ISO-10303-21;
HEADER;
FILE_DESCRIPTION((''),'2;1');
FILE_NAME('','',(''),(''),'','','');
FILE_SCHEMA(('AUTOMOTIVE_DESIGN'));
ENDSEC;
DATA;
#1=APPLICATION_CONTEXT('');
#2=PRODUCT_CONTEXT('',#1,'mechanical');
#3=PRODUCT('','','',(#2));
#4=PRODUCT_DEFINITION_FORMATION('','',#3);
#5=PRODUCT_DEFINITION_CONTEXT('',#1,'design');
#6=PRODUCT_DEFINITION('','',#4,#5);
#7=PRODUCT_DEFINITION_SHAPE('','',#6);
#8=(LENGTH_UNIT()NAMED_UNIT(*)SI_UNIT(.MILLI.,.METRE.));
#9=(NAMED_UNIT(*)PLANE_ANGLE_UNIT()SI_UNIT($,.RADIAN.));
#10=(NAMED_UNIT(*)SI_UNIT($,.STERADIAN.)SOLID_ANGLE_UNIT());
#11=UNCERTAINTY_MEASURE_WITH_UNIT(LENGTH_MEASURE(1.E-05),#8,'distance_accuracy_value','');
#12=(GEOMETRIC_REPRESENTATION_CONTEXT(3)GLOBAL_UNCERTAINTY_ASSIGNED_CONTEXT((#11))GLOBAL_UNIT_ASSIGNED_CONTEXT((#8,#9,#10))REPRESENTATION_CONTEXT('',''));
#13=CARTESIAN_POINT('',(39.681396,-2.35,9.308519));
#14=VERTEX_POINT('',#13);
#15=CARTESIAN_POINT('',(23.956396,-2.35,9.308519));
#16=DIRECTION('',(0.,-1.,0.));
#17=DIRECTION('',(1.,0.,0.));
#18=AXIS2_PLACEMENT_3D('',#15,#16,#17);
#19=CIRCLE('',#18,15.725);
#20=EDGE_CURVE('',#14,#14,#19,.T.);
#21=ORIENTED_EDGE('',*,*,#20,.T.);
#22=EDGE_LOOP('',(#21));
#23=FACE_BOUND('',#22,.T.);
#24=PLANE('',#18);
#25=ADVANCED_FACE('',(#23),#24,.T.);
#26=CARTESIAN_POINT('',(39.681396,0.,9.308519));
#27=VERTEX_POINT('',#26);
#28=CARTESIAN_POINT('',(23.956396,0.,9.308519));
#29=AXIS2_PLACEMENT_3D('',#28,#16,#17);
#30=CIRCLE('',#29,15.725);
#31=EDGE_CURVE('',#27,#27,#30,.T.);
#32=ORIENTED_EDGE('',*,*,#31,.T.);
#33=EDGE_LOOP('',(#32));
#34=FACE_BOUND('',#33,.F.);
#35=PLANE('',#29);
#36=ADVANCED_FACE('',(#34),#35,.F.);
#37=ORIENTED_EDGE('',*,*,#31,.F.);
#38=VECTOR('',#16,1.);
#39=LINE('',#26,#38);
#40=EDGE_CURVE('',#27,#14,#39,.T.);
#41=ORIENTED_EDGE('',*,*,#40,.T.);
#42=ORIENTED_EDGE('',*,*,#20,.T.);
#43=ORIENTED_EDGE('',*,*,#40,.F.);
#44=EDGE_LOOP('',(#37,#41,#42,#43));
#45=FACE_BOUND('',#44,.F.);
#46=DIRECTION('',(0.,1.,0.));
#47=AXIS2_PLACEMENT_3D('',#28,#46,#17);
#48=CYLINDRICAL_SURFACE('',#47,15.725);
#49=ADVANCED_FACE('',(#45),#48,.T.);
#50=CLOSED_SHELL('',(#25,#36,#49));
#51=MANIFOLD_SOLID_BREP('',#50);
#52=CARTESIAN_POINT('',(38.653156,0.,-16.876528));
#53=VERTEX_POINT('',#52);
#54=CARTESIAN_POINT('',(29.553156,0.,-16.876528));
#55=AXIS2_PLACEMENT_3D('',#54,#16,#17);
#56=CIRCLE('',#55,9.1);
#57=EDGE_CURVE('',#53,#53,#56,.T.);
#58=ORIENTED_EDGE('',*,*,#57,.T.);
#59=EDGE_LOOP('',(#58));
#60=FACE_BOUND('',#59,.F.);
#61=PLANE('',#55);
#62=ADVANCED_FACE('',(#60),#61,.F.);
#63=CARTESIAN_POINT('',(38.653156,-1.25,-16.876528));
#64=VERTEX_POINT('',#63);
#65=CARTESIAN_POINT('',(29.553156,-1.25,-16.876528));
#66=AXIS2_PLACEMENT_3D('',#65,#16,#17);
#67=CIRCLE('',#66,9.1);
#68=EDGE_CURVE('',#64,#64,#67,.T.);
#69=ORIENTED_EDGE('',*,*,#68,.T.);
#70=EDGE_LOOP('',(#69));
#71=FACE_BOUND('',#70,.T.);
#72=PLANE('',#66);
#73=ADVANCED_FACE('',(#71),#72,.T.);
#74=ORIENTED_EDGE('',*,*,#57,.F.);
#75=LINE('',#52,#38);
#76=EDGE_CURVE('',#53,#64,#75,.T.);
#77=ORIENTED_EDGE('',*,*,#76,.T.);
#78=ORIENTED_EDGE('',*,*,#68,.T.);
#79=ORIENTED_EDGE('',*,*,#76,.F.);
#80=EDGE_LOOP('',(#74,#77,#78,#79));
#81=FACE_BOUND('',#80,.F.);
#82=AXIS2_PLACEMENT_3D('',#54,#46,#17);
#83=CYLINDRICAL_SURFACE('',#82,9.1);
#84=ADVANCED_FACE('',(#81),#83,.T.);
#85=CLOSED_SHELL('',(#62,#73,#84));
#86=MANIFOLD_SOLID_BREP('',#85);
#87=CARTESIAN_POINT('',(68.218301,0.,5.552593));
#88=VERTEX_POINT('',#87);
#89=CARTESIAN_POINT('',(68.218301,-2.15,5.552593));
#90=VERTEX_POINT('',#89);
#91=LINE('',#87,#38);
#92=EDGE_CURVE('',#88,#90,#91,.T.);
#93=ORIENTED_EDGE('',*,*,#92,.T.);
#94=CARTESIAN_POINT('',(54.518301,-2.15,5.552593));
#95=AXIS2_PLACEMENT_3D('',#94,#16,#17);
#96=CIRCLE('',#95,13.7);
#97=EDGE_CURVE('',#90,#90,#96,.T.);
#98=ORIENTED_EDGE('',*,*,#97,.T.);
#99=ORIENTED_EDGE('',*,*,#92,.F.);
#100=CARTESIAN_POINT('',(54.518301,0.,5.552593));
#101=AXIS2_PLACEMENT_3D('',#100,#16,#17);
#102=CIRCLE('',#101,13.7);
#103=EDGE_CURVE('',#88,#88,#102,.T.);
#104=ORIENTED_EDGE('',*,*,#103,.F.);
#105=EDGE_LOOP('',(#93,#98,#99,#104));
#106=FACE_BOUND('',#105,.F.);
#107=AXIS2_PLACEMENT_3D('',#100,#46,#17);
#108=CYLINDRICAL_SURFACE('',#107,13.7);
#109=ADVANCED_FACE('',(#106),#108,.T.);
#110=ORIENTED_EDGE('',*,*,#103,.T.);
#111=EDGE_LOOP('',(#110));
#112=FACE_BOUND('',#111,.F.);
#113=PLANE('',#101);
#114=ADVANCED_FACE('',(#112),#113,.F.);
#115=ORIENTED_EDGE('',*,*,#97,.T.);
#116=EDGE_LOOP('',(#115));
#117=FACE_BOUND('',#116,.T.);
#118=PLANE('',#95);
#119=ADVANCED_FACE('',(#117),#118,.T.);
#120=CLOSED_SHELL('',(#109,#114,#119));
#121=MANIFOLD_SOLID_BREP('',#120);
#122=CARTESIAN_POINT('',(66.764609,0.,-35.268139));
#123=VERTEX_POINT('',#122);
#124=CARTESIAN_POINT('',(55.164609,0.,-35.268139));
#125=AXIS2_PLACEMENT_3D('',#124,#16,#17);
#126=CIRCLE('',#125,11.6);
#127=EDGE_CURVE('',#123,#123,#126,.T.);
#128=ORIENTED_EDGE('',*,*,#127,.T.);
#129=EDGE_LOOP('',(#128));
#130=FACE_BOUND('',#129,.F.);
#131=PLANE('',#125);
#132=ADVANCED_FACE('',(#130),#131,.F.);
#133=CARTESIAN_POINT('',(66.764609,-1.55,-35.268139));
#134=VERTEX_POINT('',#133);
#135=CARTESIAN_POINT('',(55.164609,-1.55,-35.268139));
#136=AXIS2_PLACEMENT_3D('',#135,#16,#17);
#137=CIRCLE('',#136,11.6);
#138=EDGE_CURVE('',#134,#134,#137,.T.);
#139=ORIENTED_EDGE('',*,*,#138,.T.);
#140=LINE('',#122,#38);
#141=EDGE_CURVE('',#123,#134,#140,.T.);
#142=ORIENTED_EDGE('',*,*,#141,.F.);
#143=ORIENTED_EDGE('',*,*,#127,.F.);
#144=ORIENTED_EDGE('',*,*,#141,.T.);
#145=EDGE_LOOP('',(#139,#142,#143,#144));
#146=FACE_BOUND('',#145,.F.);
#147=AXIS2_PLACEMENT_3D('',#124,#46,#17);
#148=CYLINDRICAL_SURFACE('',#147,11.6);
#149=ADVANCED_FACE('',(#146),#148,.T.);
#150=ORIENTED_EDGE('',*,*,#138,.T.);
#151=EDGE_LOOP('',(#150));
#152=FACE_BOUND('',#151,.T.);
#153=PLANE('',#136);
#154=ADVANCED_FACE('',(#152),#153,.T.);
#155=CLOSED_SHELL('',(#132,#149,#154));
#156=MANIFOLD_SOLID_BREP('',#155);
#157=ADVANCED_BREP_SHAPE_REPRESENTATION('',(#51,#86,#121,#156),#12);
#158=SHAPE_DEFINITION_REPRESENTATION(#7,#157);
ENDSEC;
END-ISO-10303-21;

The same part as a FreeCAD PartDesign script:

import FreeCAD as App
import Part
import Sketcher

V = App.Vector

doc = App.newDocument("Part")
body = doc.addObject("PartDesign::Body", "Body")

sketch1 = body.newObject("Sketcher::SketchObject", "Sketch")
sketch1.AttachmentSupport = (doc.getObject("XZ_Plane"), [""])
sketch1.MapMode = "FlatFace"
sketch1.addGeometry(Part.Circle(V(23.956396, 9.308519, 0), V(0, 0, 1), 15.725), False)
sketch1.addConstraint([
    Sketcher.Constraint("Diameter", 0, 31.45),
    Sketcher.Constraint("DistanceY", -1, 1, 0, 3, 9.308519),
    Sketcher.Constraint("DistanceX", -1, 1, 0, 3, 23.956396),
])
pad1 = body.newObject("PartDesign::Pad", "Pad")
pad1.Profile = sketch1
pad1.Length = 2.35
body2 = doc.addObject("PartDesign::Body", "Body001")

sketch2 = body2.newObject("Sketcher::SketchObject", "Sketch001")
sketch2.AttachmentSupport = (doc.getObject("XZ_Plane001"), [""])
sketch2.MapMode = "FlatFace"
sketch2.addGeometry(Part.Circle(V(54.518301, 5.552593, 0), V(0, 0, 1), 13.7), False)
sketch2.addConstraint([
    Sketcher.Constraint("Diameter", 0, 27.4),
    Sketcher.Constraint("DistanceX", -1, 1, 0, 3, 54.518301),
    Sketcher.Constraint("DistanceY", -1, 1, 0, 3, 5.552593),
])
pad2 = body2.newObject("PartDesign::Pad", "Pad001")
pad2.Profile = sketch2
pad2.Length = 2.15
body3 = doc.addObject("PartDesign::Body", "Body002")

sketch3 = body3.newObject("Sketcher::SketchObject", "Sketch002")
sketch3.AttachmentSupport = (doc.getObject("XZ_Plane002"), [""])
sketch3.MapMode = "FlatFace"
sketch3.addGeometry(Part.Circle(V(55.164609, -35.268139, 0), V(0, 0, 1), 11.6), False)
sketch3.addConstraint([
    Sketcher.Constraint("Diameter", 0, 23.2),
    Sketcher.Constraint("DistanceX", -1, 1, 0, 3, 55.164609),
    Sketcher.Constraint("DistanceY", 0, 3, -1, 1, 35.268139),
])
pad3 = body3.newObject("PartDesign::Pad", "Pad002")
pad3.Profile = sketch3
pad3.Length = 1.55
body4 = doc.addObject("PartDesign::Body", "Body003")

sketch4 = body4.newObject("Sketcher::SketchObject", "Sketch003")
sketch4.AttachmentSupport = (doc.getObject("XZ_Plane003"), [""])
sketch4.MapMode = "FlatFace"
sketch4.addGeometry(Part.Circle(V(29.553156, -16.876528, 0), V(0, 0, 1), 9.1), False)
sketch4.addConstraint([
    Sketcher.Constraint("Diameter", 0, 18.2),
    Sketcher.Constraint("DistanceY", 0, 3, -1, 1, 16.876528),
    Sketcher.Constraint("DistanceX", -1, 1, 0, 3, 29.553156),
])
pad4 = body4.newObject("PartDesign::Pad", "Pad003")
pad4.Profile = sketch4
pad4.Length = 1.25

doc.recompute()
